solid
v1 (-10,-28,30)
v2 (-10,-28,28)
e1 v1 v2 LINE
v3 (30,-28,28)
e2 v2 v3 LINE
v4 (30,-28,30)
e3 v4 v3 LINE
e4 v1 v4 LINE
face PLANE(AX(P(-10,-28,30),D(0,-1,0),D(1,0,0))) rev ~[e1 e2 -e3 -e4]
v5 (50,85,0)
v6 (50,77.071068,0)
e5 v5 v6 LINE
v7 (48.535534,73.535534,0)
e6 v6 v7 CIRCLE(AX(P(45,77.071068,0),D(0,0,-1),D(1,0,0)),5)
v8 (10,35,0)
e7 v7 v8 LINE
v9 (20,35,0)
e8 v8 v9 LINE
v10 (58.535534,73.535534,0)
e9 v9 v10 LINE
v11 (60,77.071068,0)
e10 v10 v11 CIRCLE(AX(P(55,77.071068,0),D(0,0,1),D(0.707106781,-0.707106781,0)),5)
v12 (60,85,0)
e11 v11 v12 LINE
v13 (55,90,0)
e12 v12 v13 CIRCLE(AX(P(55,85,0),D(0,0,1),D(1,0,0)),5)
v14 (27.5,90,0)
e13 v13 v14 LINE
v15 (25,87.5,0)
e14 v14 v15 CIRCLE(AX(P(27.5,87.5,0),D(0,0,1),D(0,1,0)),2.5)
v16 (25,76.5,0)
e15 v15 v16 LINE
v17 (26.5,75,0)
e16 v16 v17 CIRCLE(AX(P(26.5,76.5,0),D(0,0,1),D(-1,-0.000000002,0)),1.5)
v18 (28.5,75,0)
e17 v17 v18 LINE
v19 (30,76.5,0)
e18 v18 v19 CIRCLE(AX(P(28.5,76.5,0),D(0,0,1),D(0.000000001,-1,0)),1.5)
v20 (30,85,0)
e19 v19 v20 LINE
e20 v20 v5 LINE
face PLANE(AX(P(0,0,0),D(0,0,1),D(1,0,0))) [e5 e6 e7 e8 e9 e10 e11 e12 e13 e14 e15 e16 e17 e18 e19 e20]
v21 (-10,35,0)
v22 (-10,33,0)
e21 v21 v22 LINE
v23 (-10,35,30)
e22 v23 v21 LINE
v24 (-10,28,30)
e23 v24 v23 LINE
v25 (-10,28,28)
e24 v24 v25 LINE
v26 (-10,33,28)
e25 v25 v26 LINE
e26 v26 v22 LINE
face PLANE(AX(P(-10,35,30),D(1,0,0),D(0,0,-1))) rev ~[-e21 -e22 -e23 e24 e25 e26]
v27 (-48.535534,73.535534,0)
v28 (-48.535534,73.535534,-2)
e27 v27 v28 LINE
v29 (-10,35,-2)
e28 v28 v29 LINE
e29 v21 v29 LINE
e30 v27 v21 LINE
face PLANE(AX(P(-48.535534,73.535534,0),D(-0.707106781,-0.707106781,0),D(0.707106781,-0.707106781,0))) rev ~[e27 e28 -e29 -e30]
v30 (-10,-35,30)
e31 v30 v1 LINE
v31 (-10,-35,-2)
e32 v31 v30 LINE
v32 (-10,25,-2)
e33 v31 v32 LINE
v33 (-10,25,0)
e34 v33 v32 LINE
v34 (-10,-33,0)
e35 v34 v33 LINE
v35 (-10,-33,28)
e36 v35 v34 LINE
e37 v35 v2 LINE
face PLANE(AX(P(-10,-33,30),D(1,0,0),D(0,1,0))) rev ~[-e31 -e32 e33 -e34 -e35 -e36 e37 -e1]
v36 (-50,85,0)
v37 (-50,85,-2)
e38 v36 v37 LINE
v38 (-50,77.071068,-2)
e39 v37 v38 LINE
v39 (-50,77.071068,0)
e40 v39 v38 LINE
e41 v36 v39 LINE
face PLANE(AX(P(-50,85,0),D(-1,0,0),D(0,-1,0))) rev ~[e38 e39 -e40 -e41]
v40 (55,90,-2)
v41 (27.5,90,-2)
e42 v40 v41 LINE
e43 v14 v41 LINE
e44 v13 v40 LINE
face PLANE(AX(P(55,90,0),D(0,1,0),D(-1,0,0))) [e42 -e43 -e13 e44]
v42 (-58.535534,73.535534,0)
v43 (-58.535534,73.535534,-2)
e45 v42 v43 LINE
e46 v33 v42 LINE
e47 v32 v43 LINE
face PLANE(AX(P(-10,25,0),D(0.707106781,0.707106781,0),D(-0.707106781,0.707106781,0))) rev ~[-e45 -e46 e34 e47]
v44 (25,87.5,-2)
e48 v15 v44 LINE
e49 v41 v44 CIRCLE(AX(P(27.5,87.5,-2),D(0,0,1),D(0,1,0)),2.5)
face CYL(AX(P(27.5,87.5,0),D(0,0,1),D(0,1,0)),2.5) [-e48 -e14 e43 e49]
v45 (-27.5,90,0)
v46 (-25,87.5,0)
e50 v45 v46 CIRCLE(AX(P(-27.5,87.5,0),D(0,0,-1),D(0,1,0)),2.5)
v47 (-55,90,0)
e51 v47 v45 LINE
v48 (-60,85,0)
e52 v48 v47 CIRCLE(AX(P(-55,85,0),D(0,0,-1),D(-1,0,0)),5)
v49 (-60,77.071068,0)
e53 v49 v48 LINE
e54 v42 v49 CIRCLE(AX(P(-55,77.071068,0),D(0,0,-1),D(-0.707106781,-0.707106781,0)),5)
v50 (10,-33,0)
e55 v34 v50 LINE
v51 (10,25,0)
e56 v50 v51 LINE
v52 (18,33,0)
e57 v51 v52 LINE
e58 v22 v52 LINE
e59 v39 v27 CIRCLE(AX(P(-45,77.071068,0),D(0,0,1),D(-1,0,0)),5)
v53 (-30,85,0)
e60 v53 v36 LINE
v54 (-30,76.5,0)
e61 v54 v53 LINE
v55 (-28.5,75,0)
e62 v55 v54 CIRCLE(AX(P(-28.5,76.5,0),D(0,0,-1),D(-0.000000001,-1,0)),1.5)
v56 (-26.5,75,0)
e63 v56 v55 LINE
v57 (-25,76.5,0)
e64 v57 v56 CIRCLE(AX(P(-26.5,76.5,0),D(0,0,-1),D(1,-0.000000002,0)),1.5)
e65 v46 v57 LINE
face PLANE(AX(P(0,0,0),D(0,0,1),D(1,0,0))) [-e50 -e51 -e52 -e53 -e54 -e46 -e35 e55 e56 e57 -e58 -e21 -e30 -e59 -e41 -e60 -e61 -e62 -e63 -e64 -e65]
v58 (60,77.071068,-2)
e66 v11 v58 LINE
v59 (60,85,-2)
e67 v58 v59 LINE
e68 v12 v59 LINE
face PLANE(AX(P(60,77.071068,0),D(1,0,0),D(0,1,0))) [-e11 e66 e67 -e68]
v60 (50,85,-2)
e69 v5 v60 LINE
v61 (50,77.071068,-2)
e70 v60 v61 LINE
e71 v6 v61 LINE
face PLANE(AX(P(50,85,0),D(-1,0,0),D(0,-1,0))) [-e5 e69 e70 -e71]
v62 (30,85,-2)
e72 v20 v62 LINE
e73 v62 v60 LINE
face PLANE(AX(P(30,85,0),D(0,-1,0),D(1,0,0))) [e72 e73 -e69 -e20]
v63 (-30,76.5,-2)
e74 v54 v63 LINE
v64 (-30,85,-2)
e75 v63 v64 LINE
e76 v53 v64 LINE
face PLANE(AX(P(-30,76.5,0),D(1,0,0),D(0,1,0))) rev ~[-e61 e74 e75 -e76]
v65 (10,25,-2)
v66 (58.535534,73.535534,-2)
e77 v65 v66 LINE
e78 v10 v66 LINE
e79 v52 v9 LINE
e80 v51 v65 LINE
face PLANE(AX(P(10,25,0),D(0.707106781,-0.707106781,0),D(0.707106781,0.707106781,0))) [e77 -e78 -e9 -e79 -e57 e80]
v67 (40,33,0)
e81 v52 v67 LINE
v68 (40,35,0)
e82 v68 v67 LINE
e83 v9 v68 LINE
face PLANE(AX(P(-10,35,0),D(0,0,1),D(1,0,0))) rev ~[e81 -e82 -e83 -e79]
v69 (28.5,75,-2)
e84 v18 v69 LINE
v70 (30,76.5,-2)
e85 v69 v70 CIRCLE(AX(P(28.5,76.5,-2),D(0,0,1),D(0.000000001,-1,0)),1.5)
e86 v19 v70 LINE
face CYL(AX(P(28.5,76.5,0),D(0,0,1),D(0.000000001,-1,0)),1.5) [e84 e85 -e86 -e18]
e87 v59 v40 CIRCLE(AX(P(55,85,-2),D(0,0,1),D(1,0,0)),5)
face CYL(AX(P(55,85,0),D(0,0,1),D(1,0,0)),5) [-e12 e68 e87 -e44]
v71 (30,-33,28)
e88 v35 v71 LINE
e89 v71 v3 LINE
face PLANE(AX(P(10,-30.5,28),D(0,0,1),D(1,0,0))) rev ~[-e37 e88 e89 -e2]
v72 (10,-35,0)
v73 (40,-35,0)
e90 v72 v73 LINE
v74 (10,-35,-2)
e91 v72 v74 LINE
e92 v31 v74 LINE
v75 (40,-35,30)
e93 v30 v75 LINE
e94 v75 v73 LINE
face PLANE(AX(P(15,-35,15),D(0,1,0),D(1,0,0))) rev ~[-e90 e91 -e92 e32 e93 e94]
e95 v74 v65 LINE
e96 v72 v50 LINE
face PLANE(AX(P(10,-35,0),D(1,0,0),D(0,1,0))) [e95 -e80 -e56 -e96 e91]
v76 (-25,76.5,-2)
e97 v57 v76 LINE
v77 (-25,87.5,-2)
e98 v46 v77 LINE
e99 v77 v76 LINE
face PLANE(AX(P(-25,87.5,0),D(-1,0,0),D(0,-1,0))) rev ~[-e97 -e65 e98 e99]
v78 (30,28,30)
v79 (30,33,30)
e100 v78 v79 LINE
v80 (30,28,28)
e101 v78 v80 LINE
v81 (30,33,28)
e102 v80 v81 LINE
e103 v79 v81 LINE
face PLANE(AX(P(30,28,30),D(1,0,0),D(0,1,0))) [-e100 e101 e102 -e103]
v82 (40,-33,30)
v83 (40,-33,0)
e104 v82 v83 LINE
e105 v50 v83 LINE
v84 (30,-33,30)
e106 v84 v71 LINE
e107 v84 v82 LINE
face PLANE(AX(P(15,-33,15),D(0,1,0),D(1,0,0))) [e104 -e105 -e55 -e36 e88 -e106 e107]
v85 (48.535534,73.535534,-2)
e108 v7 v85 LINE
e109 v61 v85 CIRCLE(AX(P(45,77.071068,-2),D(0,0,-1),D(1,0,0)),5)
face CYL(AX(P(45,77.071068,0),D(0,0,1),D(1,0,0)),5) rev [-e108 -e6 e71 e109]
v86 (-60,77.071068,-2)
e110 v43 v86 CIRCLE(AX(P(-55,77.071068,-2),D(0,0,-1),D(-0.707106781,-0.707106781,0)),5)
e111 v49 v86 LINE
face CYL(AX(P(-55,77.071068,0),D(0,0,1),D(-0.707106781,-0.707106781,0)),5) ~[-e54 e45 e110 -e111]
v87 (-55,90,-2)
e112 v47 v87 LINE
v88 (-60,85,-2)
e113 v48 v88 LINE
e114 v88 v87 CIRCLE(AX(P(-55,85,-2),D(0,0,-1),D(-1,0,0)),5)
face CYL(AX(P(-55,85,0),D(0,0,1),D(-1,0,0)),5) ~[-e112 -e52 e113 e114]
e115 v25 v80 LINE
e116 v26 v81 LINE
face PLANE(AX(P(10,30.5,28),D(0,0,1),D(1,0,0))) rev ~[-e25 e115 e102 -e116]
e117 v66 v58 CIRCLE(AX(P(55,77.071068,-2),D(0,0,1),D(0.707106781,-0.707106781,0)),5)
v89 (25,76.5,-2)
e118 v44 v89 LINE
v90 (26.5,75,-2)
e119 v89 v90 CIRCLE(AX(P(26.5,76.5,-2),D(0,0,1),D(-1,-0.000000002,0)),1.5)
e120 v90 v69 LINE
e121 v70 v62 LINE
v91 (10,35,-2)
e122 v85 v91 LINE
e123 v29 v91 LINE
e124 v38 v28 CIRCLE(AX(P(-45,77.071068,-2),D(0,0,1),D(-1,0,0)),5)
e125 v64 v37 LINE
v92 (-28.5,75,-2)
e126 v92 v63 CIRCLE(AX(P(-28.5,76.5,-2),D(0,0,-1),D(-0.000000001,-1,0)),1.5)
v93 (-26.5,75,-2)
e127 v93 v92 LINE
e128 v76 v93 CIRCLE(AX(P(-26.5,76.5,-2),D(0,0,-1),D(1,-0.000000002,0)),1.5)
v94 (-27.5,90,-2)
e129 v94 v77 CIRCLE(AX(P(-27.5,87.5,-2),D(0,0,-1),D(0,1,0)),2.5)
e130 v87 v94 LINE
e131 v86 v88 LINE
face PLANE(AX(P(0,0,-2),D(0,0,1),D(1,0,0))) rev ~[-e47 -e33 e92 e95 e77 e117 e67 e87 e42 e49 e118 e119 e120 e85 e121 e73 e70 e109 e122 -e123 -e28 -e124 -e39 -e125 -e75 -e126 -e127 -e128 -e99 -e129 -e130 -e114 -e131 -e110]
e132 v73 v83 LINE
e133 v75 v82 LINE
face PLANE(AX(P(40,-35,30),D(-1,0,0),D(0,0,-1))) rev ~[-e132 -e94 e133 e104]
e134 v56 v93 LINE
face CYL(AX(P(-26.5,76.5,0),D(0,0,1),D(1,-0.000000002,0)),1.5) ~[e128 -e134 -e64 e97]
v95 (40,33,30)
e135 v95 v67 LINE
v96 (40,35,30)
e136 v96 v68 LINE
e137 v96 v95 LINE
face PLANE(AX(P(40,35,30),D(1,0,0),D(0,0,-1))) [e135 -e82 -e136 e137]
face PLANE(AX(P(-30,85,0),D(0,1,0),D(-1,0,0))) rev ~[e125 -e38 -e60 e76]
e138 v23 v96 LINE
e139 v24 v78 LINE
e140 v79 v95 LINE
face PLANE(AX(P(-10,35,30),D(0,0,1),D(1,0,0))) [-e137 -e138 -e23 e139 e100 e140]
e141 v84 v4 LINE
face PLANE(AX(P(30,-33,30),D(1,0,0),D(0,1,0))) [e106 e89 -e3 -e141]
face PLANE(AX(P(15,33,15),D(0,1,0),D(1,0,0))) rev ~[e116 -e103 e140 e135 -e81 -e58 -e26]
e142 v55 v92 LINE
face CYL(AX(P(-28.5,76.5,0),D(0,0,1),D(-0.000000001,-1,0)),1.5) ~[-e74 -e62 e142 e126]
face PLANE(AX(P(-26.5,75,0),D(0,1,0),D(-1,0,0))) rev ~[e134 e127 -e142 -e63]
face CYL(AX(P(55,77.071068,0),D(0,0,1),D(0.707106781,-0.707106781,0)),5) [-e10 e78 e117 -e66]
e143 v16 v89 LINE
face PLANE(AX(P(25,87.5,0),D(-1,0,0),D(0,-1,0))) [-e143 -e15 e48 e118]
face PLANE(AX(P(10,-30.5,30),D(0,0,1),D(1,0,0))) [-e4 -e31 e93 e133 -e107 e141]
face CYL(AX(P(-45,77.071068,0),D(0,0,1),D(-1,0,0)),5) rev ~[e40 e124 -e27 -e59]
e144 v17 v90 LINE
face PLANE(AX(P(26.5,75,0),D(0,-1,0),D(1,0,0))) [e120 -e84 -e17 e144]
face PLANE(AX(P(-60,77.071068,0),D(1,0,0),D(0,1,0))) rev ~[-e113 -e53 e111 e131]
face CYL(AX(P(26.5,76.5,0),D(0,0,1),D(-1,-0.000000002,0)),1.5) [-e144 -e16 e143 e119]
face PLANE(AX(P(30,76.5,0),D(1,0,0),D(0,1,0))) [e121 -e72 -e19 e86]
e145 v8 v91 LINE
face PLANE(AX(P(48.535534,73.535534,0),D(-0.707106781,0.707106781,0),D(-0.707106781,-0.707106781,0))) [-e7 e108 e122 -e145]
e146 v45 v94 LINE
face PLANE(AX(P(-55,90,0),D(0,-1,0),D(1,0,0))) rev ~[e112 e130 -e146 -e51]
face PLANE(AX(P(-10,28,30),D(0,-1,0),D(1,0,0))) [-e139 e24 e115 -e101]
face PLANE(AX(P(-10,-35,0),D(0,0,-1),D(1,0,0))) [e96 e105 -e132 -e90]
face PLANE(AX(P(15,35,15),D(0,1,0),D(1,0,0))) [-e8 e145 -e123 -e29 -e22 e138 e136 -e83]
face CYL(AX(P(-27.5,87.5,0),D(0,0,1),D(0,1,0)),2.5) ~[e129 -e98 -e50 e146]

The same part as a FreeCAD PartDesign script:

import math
import FreeCAD as App
import Part
import Sketcher
from FreeCAD import Vector
Q = App.Units.Quantity


def add_polygon(sketch, points):
    """Adds a closed chain of lines whose ends are joined by coincident constraints."""
    first, n = sketch.GeometryCount, len(points)
    for a, b in zip(points, points[1:] + points[:1]):
        sketch.addGeometry(Part.LineSegment(App.Vector(*a, 0), App.Vector(*b, 0)), False)
    for i in range(n):
        sketch.addConstraint(Sketcher.Constraint("Coincident", first + i, 2, first + (i + 1) % n, 1))

doc = App.newDocument("Part")
body = doc.addObject("PartDesign::Body", "Body")

sketch1 = body.newObject("Sketcher::SketchObject", "Sketch")
sketch1.AttachmentSupport = (doc.getObject("XY_Plane"), [""])
sketch1.MapMode = "FlatFace"
sketch1.addGeometry([
    Part.LineSegment(Vector(-10, 25, 0), Vector(-10, 35, 0)),
    Part.LineSegment(Vector(-10, 35, 0), Vector(-48.535534, 73.535534, 0)),
    Part.ArcOfCircle(Part.Circle(Vector(-45, 77.071068, 0), Vector(0, 0, 1), 5), math.radians(180), math.radians(225)),
    Part.LineSegment(Vector(-50, 77.071068, 0), Vector(-50, 85, 0)),
    Part.LineSegment(Vector(-50, 85, 0), Vector(-30, 85, 0)),
    Part.LineSegment(Vector(-30, 85, 0), Vector(-30, 76.5, 0)),
    Part.ArcOfCircle(Part.Circle(Vector(-28.5, 76.5, 0), Vector(0, 0, 1), 1.5), math.radians(-180), math.radians(-90)),
    Part.LineSegment(Vector(-28.5, 75, 0), Vector(-26.5, 75, 0)),
    Part.ArcOfCircle(Part.Circle(Vector(-26.5, 76.5, 0), Vector(0, 0, 1), 1.5), math.radians(-90), math.radians(0)),
    Part.LineSegment(Vector(-25, 76.5, 0), Vector(-25, 87.5, 0)),
    Part.ArcOfCircle(Part.Circle(Vector(-27.5, 87.5, 0), Vector(0, 0, 1), 2.5), math.radians(0), math.radians(90)),
    Part.LineSegment(Vector(-27.5, 90, 0), Vector(-55, 90, 0)),
    Part.ArcOfCircle(Part.Circle(Vector(-55, 85, 0), Vector(0, 0, 1), 5), math.radians(90), math.radians(180)),
    Part.LineSegment(Vector(-60, 85, 0), Vector(-60, 77.071068, 0)),
    Part.ArcOfCircle(Part.Circle(Vector(-55, 77.071068, 0), Vector(0, 0, 1), 5), math.radians(180), math.radians(225)),
    Part.LineSegment(Vector(-58.535534, 73.535534, 0), Vector(-10, 25, 0)),
], False)
sketch1.addConstraint([
    Sketcher.Constraint("Coincident", 0, 2, 1, 1),
    Sketcher.Constraint("Tangent", 1, 2, 2, 2),
    Sketcher.Constraint("Tangent", 2, 1, 3, 1),
    Sketcher.Constraint("Coincident", 3, 2, 4, 1),
    Sketcher.Constraint("Coincident", 4, 2, 5, 1),
    Sketcher.Constraint("Tangent", 5, 2, 6, 1),
    Sketcher.Constraint("Tangent", 6, 2, 7, 1),
    Sketcher.Constraint("Tangent", 7, 2, 8, 1),
    Sketcher.Constraint("Tangent", 8, 2, 9, 1),
    Sketcher.Constraint("Tangent", 9, 2, 10, 1),
    Sketcher.Constraint("Tangent", 10, 2, 11, 1),
    Sketcher.Constraint("Tangent", 11, 2, 12, 1),
    Sketcher.Constraint("Tangent", 12, 2, 13, 1),
    Sketcher.Constraint("Tangent", 13, 2, 14, 1),
    Sketcher.Constraint("Tangent", 14, 2, 15, 1),
    Sketcher.Constraint("Coincident", 15, 2, 0, 1),
    Sketcher.Constraint("Vertical", 0),
    Sketcher.Constraint("Vertical", 3),
    Sketcher.Constraint("Horizontal", 4),
    Sketcher.Constraint("Vertical", 5),
    Sketcher.Constraint("Horizontal", 7),
    Sketcher.Constraint("Vertical", 9),
    Sketcher.Constraint("Horizontal", 11),
    Sketcher.Constraint("Vertical", 13),
    Sketcher.Constraint("Equal", 6, 8),
    Sketcher.Constraint("Equal", 2, 12),
    Sketcher.Constraint("Equal", 12, 14),
    Sketcher.Constraint("Parallel", 1, 15),
    Sketcher.Constraint("Horizontal", 2, 3, 14, 3),
    Sketcher.Constraint("Horizontal", 12, 3, 3, 2),
    Sketcher.Constraint("Radius", 2, Q("5 mm")),
    Sketcher.Constraint("Radius", 6, Q("1.5 mm")),
    Sketcher.Constraint("Radius", 10, Q("2.5 mm")),
    Sketcher.Constraint("DistanceX", 4, 1, 4, 2, Q("20 mm")),
    Sketcher.Constraint("DistanceX", 7, 1, 7, 2, Q("2 mm")),
    Sketcher.Constraint("DistanceY", 0, 1, 0, 2, Q("10 mm")),
    Sketcher.Constraint("DistanceY", 9, 1, 9, 2, Q("11 mm")),
    Sketcher.Constraint("Angle", 1, Q("135 deg")),
    Sketcher.Constraint("DistanceX", 2, 3, -1, 1, Q("45 mm")),
    Sketcher.Constraint("DistanceY", -1, 1, 12, 3, Q("85 mm")),
    Sketcher.Constraint("DistanceX", 0, 2, -1, 1, Q("10 mm")),
    Sketcher.Constraint("DistanceY", -1, 1, 0, 2, Q("35 mm")),
])
pad1 = body.newObject("PartDesign::Pad", "Pad")
pad1.Profile = sketch1
pad1.Length = 2
pad1.Reversed = True
body2 = doc.addObject("PartDesign::Body", "Body001")

sketch2 = body2.newObject("Sketcher::SketchObject", "Sketch001")
sketch2.AttachmentSupport = (doc.getObject("XY_Plane001"), [""])
sketch2.MapMode = "FlatFace"
sketch2.addGeometry([
    Part.LineSegment(Vector(48.535534, 73.535534, 0), Vector(10, 35, 0)),
    Part.LineSegment(Vector(10, 35, 0), Vector(10, 25, 0)),
    Part.LineSegment(Vector(10, 25, 0), Vector(58.535534, 73.535534, 0)),
    Part.ArcOfCircle(Part.Circle(Vector(55, 77.071068, 0), Vector(0, 0, 1), 5), math.radians(-45), math.radians(0)),
    Part.LineSegment(Vector(60, 77.071068, 0), Vector(60, 85, 0)),
    Part.ArcOfCircle(Part.Circle(Vector(55, 85, 0), Vector(0, 0, 1), 5), math.radians(0), math.radians(90)),
    Part.LineSegment(Vector(55, 90, 0), Vector(27.5, 90, 0)),
    Part.ArcOfCircle(Part.Circle(Vector(27.5, 87.5, 0), Vector(0, 0, 1), 2.5), math.radians(90), math.radians(180)),
    Part.LineSegment(Vector(25, 87.5, 0), Vector(25, 76.5, 0)),
    Part.ArcOfCircle(Part.Circle(Vector(26.5, 76.5, 0), Vector(0, 0, 1), 1.5), math.radians(-180), math.radians(-90)),
    Part.LineSegment(Vector(26.5, 75, 0), Vector(28.5, 75, 0)),
    Part.ArcOfCircle(Part.Circle(Vector(28.5, 76.5, 0), Vector(0, 0, 1), 1.5), math.radians(-90), math.radians(0)),
    Part.LineSegment(Vector(30, 76.5, 0), Vector(30, 85, 0)),
    Part.LineSegment(Vector(30, 85, 0), Vector(50, 85, 0)),
    Part.LineSegment(Vector(50, 85, 0), Vector(50, 77.071068, 0)),
    Part.ArcOfCircle(Part.Circle(Vector(45, 77.071068, 0), Vector(0, 0, 1), 5), math.radians(-45), math.radians(0)),
], False)
sketch2.addConstraint([
    Sketcher.Constraint("Coincident", 0, 2, 1, 1),
    Sketcher.Constraint("Coincident", 1, 2, 2, 1),
    Sketcher.Constraint("Tangent", 2, 2, 3, 1),
    Sketcher.Constraint("Tangent", 3, 2, 4, 1),
    Sketcher.Constraint("Tangent", 4, 2, 5, 1),
    Sketcher.Constraint("Tangent", 5, 2, 6, 1),
    Sketcher.Constraint("Tangent", 6, 2, 7, 1),
    Sketcher.Constraint("Tangent", 7, 2, 8, 1),
    Sketcher.Constraint("Tangent", 8, 2, 9, 1),
    Sketcher.Constraint("Tangent", 9, 2, 10, 1),
    Sketcher.Constraint("Tangent", 10, 2, 11, 1),
    Sketcher.Constraint("Tangent", 11, 2, 12, 1),
    Sketcher.Constraint("Coincident", 12, 2, 13, 1),
    Sketcher.Constraint("Coincident", 13, 2, 14, 1),
    Sketcher.Constraint("Tangent", 14, 2, 15, 2),
    Sketcher.Constraint("Tangent", 15, 1, 0, 1),
    Sketcher.Constraint("Vertical", 1),
    Sketcher.Constraint("Vertical", 4),
    Sketcher.Constraint("Horizontal", 6),
    Sketcher.Constraint("Vertical", 8),
    Sketcher.Constraint("Horizontal", 10),
    Sketcher.Constraint("Vertical", 12),
    Sketcher.Constraint("Horizontal", 13),
    Sketcher.Constraint("Vertical", 14),
    Sketcher.Constraint("Equal", 3, 5),
    Sketcher.Constraint("Equal", 9, 11),
    Sketcher.Constraint("Equal", 5, 15),
    Sketcher.Constraint("Parallel", 0, 2),
    Sketcher.Constraint("Horizontal", 3, 3, 15, 3),
    Sketcher.Constraint("Horizontal", 4, 2, 12, 2),
    Sketcher.Constraint("Radius", 3, Q("5 mm")),
    Sketcher.Constraint("Radius", 7, Q("2.5 mm")),
    Sketcher.Constraint("Radius", 9, Q("1.5 mm")),
    Sketcher.Constraint("DistanceX", 10, 1, 10, 2, Q("2 mm")),
    Sketcher.Constraint("DistanceX", 13, 1, 13, 2, Q("20 mm")),
    Sketcher.Constraint("DistanceY", 1, 2, 1, 1, Q("10 mm")),
    Sketcher.Constraint("DistanceY", 8, 2, 8, 1, Q("11 mm")),
    Sketcher.Constraint("Angle", 0, Q("-135 deg")),
    Sketcher.Constraint("DistanceX", -1, 1, 3, 3, Q("55 mm")),
    Sketcher.Constraint("DistanceY", -1, 1, 5, 3, Q("85 mm")),
    Sketcher.Constraint("DistanceX", -1, 1, 0, 2, Q("10 mm")),
    Sketcher.Constraint("DistanceY", -1, 1, 0, 2, Q("35 mm")),
])
pad2 = body2.newObject("PartDesign::Pad", "Pad001")
pad2.Profile = sketch2
pad2.Length = 2
pad2.Reversed = True
body.AllowCompound = True
doc.recompute()

boolean = body.newObject("PartDesign::Boolean", "Boolean")
boolean.Type = "Fuse"
boolean.addObjects([body2])

sketch3 = body.newObject("Sketcher::SketchObject", "Sketch002")
sketch3.AttachmentSupport = (doc.getObject("XY_Plane"), [""])
sketch3.MapMode = "FlatFace"
add_polygon(sketch3, [(-10, 35), (-10, -35), (10, -35), (10, 35)])
sketch3.addConstraint([
    Sketcher.Constraint("Vertical", 0),
    Sketcher.Constraint("Horizontal", 1),
    Sketcher.Constraint("Vertical", 2),
    Sketcher.Constraint("Horizontal", 3),
    Sketcher.Constraint("Symmetric", 0, 2, 2, 2, -1, 1),
    Sketcher.Constraint("DistanceX", 1, 1, 1, 2, Q("20 mm")),
    Sketcher.Constraint("DistanceY", 0, 2, 0, 1, Q("70 mm")),
])
pad3 = body.newObject("PartDesign::Pad", "Pad002")
pad3.Profile = sketch3
pad3.Length = 2
pad3.Reversed = True

sketch4 = body.newObject("Sketcher::SketchObject", "Sketch003")
sketch4.AttachmentSupport = (doc.getObject("XZ_Plane"), [""])
sketch4.MapMode = "FlatFace"
sketch4.AttachmentOffset = App.Placement(Vector(0, 0, -35), App.Rotation())
add_polygon(sketch4, [(-10, 0), (-10, 30), (40, 30), (40, 0)])
sketch4.addConstraint([
    Sketcher.Constraint("Vertical", 0),
    Sketcher.Constraint("Horizontal", 1),
    Sketcher.Constraint("Vertical", 2),
    Sketcher.Constraint("Horizontal", 3),
    Sketcher.Constraint("PointOnObject", 2, 2, -1),
    Sketcher.Constraint("DistanceX", 1, 1, 1, 2, Q("50 mm")),
    Sketcher.Constraint("DistanceY", 0, 1, 0, 2, Q("30 mm")),
    Sketcher.Constraint("DistanceX", 0, 2, -1, 1, Q("10 mm")),
])
pad4 = body.newObject("PartDesign::Pad", "Pad003")
pad4.Profile = sketch4
pad4.Length = 2
body3 = doc.addObject("PartDesign::Body", "Body002")

sketch5 = body3.newObject("Sketcher::SketchObject", "Sketch004")
sketch5.AttachmentSupport = (doc.getObject("XZ_Plane002"), [""])
sketch5.MapMode = "FlatFace"
sketch5.AttachmentOffset = App.Placement(Vector(0, 0, 35), App.Rotation())
add_polygon(sketch5, [(-10, 0), (-10, 30), (40, 30), (40, 0)])
sketch5.addConstraint([
    Sketcher.Constraint("Vertical", 0),
    Sketcher.Constraint("Horizontal", 1),
    Sketcher.Constraint("Vertical", 2),
    Sketcher.Constraint("Horizontal", 3),
    Sketcher.Constraint("PointOnObject", 2, 2, -1),
    Sketcher.Constraint("DistanceX", 1, 1, 1, 2, Q("50 mm")),
    Sketcher.Constraint("DistanceY", 0, 1, 0, 2, Q("30 mm")),
    Sketcher.Constraint("DistanceX", 0, 2, -1, 1, Q("10 mm")),
])
pad5 = body3.newObject("PartDesign::Pad", "Pad004")
pad5.Profile = sketch5
pad5.Length = 2
pad5.Reversed = True
doc.recompute()

boolean2 = body.newObject("PartDesign::Boolean", "Boolean001")
boolean2.Type = "Fuse"
boolean2.addObjects([body3])

sketch6 = body.newObject("Sketcher::SketchObject", "Sketch005")
sketch6.AttachmentSupport = (doc.getObject("XY_Plane"), [""])
sketch6.MapMode = "FlatFace"
sketch6.AttachmentOffset = App.Placement(Vector(0, 0, 30), App.Rotation())
add_polygon(sketch6, [(-10, -28), (-10, -33), (30, -33), (30, -28)])
add_polygon(sketch6, [(-10, 33), (-10, 28), (30, 28), (30, 33)])
sketch6.addConstraint([
    Sketcher.Constraint("Vertical", 0),
    Sketcher.Constraint("Horizontal", 1),
    Sketcher.Constraint("Vertical", 2),
    Sketcher.Constraint("Horizontal", 3),
    Sketcher.Constraint("Vertical", 4),
    Sketcher.Constraint("Horizontal", 5),
    Sketcher.Constraint("Vertical", 6),
    Sketcher.Constraint("Horizontal", 7),
    Sketcher.Constraint("Symmetric", 3, 2, 4, 2, -1),
    Sketcher.Constraint("Symmetric", 1, 2, 6, 2, -1),
    Sketcher.Constraint("DistanceX", 1, 1, 1, 2, Q("40 mm")),
    Sketcher.Constraint("DistanceY", 0, 2, 0, 1, Q("5 mm")),
    Sketcher.Constraint("DistanceX", 0, 2, -1, 1, Q("10 mm")),
    Sketcher.Constraint("DistanceY", 0, 2, -1, 1, Q("33 mm")),
])
pad6 = body.newObject("PartDesign::Pad", "Pad005")
pad6.Profile = sketch6
pad6.Length = 2
pad6.Reversed = True

doc.recompute()
